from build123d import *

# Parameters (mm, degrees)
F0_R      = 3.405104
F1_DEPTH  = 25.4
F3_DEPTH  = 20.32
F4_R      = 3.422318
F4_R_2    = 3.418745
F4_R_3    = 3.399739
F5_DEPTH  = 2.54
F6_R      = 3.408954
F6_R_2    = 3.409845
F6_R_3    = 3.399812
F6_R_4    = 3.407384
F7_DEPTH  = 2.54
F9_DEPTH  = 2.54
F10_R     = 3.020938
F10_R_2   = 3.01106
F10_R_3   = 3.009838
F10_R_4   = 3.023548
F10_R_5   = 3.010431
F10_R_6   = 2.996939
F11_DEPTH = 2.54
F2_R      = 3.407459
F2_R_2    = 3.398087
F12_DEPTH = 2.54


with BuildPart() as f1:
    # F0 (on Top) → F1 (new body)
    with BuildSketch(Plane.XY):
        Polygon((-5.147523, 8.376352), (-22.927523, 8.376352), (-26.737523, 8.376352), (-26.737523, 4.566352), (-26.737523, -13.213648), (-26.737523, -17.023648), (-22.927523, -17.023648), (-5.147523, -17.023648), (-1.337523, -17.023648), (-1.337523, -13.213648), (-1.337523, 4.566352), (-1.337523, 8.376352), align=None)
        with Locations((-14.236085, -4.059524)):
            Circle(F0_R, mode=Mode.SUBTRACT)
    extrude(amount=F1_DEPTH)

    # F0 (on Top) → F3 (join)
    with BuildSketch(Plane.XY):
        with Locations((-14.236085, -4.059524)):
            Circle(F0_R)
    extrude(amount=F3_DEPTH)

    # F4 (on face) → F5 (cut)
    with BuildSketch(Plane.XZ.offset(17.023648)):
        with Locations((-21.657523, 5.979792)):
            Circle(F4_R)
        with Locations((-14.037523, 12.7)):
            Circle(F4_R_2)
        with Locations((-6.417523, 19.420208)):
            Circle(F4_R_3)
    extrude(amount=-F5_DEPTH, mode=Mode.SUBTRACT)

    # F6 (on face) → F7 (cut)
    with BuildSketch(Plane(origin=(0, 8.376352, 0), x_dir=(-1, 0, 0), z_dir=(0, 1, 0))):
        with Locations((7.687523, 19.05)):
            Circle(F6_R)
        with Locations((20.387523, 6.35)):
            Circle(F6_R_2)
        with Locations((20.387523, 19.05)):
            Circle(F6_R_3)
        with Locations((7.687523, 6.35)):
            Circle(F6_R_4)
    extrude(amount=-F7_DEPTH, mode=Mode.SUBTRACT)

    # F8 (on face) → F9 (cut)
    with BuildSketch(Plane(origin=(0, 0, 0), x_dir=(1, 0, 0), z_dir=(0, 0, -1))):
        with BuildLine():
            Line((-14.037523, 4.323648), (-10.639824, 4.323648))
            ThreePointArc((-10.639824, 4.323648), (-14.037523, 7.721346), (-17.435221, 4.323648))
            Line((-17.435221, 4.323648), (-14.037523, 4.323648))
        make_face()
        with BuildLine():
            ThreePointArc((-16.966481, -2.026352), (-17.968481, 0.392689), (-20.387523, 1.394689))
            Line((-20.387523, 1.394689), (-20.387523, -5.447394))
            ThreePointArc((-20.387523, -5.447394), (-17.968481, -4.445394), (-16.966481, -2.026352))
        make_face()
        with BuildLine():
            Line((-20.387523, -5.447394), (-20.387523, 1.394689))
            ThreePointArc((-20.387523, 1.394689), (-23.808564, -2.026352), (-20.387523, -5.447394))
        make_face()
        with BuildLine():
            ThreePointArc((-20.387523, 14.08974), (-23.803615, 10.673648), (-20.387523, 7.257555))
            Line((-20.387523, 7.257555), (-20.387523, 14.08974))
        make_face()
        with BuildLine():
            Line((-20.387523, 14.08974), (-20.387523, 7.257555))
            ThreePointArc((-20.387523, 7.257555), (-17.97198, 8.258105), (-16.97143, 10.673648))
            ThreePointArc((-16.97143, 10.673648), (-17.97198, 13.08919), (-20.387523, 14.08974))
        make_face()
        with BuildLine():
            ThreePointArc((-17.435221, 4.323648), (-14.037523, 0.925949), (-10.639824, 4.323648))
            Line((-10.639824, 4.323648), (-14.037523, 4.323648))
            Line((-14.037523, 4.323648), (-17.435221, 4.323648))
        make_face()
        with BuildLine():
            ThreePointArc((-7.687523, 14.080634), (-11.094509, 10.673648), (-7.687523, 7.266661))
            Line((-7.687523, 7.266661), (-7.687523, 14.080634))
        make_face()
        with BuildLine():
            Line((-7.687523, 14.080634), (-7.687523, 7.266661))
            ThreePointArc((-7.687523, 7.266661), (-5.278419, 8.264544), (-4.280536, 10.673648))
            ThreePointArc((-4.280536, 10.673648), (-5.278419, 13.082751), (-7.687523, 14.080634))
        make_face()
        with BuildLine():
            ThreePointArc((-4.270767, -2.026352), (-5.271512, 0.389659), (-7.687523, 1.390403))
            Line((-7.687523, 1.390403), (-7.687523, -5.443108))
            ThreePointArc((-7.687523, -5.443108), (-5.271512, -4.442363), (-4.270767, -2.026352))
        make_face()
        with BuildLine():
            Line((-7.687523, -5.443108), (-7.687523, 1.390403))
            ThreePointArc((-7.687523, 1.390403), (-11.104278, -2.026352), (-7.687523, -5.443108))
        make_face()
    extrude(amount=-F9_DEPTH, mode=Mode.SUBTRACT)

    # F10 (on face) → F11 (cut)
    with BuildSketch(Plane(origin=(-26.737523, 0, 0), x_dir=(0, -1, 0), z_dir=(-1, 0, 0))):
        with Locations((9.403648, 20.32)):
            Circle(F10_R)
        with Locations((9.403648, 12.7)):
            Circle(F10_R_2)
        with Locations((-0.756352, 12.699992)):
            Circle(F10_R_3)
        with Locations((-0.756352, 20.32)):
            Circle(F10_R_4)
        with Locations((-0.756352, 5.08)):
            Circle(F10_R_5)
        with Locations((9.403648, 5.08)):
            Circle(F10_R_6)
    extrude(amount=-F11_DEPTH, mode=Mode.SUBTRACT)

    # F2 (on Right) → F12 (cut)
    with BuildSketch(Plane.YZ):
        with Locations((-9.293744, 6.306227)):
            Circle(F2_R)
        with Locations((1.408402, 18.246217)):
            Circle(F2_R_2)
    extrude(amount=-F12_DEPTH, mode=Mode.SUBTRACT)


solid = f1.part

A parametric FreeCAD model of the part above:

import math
import FreeCAD as App
import Part
import Sketcher
from FreeCAD import Vector
Q = App.Units.Quantity

doc = App.newDocument("Part")
body = doc.addObject("PartDesign::Body", "Body")

sketch1 = body.newObject("Sketcher::SketchObject", "Sketch")
sketch1.AttachmentSupport = (doc.getObject("XY_Plane"), [""])
sketch1.MapMode = "FlatFace"
sketch1.addGeometry([
    Part.LineSegment(Vector(-26.7, 8.4, 0), Vector(-26.7, -17, 0)),
    Part.LineSegment(Vector(-26.7, -17, 0), Vector(-1.3, -17, 0)),
    Part.LineSegment(Vector(-1.3, -17, 0), Vector(-1.3, 8.4, 0)),
    Part.LineSegment(Vector(-1.3, 8.4, 0), Vector(-26.7, 8.4, 0)),
    Part.Circle(Vector(-14.2, -4.1, 0), Vector(0, 0, 1), 3.4),
], False)
sketch1.addConstraint([
    Sketcher.Constraint("Coincident", 0, 2, 1, 1),
    Sketcher.Constraint("Coincident", 1, 2, 2, 1),
    Sketcher.Constraint("Coincident", 2, 2, 3, 1),
    Sketcher.Constraint("Coincident", 3, 2, 0, 1),
    Sketcher.Constraint("Vertical", 0),
    Sketcher.Constraint("Horizontal", 1),
    Sketcher.Constraint("Vertical", 2),
    Sketcher.Constraint("Horizontal", 3),
    Sketcher.Constraint("Equal", 3, 0),
    Sketcher.Constraint("DistanceX", 1, 1, 1, 2, Q("1 in")),
    Sketcher.Constraint("Diameter", 4, 6.810208),
    Sketcher.Constraint("DistanceY", 0, 2, -1, 1, 17.023648),
    Sketcher.Constraint("DistanceX", 4, 3, 1, 2, 12.898562),
    Sketcher.Constraint("DistanceX", 4, 3, -1, 1, 14.236085),
    Sketcher.Constraint("DistanceY", 4, 3, -1, 1, 4.059524),
])
pad1 = body.newObject("PartDesign::Pad", "Pad")
pad1.Profile = sketch1
pad1.Length = Q("1 in")

sketch2 = body.newObject("Sketcher::SketchObject", "Sketch001")
sketch2.AttachmentSupport = (doc.getObject("XY_Plane"), [""])
sketch2.MapMode = "FlatFace"
sketch2.addGeometry(Part.Circle(Vector(-14.2, -4.1, 0), Vector(0, 0, 1), 3.4), False)
sketch2.addConstraint([
    Sketcher.Constraint("Diameter", 0, 6.810208),
    Sketcher.Constraint("DistanceX", 0, 3, -1, 1, 14.236085),
    Sketcher.Constraint("DistanceY", 0, 3, -1, 1, 4.059524),
])
pad2 = body.newObject("PartDesign::Pad", "Pad001")
pad2.Profile = sketch2
pad2.Length = Q("0.8 in")

sketch3 = body.newObject("Sketcher::SketchObject", "Sketch002")
sketch3.AttachmentSupport = (doc.getObject("XZ_Plane"), [""])
sketch3.MapMode = "FlatFace"
sketch3.AttachmentOffset = App.Placement(Vector(0, 0, 17.023648), App.Rotation())
sketch3.addGeometry([
    Part.Circle(Vector(-21.7, 6, 0), Vector(0, 0, 1), 3.4),
    Part.Circle(Vector(-14, 12.7, 0), Vector(0, 0, 1), 3.4),
    Part.Circle(Vector(-6.4, 19.4, 0), Vector(0, 0, 1), 3.4),
], False)
sketch3.addConstraint([
    Sketcher.Constraint("DistanceY", -1, 1, 1, 3, Q("0.5 in")),
    Sketcher.Constraint("DistanceX", 0, 3, 1, 3, Q("0.3 in")),
    Sketcher.Constraint("DistanceX", 1, 3, 2, 3, Q("0.3 in")),
    Sketcher.Constraint("Diameter", 1, 6.83749),
    Sketcher.Constraint("Diameter", 0, 6.844636),
    Sketcher.Constraint("Diameter", 2, 6.799478),
    Sketcher.Constraint("DistanceY", -1, 1, 0, 3, 5.979792),
    Sketcher.Constraint("DistanceX", 0, 3, -1, 1, 21.657523),
    Sketcher.Constraint("DistanceY", -1, 1, 2, 3, 19.420208),
])
pocket1 = body.newObject("PartDesign::Pocket", "Pocket")
pocket1.Profile = sketch3
pocket1.Length = Q("0.1 in")

sketch4 = body.newObject("Sketcher::SketchObject", "Sketch003")
sketch4.AttachmentSupport = (doc.getObject("XZ_Plane"), [""])
sketch4.MapMode = "FlatFace"
sketch4.AttachmentOffset = App.Placement(Vector(0, 0, -8.376352), App.Rotation())
sketch4.addGeometry([
    Part.Circle(Vector(-7.7, 19.1, 0), Vector(0, 0, 1), 3.4),
    Part.Circle(Vector(-20.4, 6.3, 0), Vector(0, 0, 1), 3.4),
    Part.Circle(Vector(-20.4, 19.1, 0), Vector(0, 0, 1), 3.4),
    Part.Circle(Vector(-7.7, 6.3, 0), Vector(0, 0, 1), 3.4),
], False)
sketch4.addConstraint([
    Sketcher.Constraint("Horizontal", 0, 3, 2, 3),
    Sketcher.Constraint("Horizontal", 1, 3, 3, 3),
    Sketcher.Constraint("Vertical", 1, 3, 2, 3),
    Sketcher.Constraint("Vertical", 0, 3, 3, 3),
    Sketcher.Constraint("DistanceX", 1, 3, 0, 3, Q("0.5 in")),
    Sketcher.Constraint("DistanceY", 1, 3, 0, 3, Q("0.5 in")),
    Sketcher.Constraint("DistanceY", -1, 1, 0, 3, Q("0.75 in")),
    Sketcher.Constraint("Diameter", 1, 6.81969),
    Sketcher.Constraint("Diameter", 0, 6.817908),
    Sketcher.Constraint("Diameter", 2, 6.799624),
    Sketcher.Constraint("Diameter", 3, 6.814768),
    Sketcher.Constraint("DistanceX", 0, 3, -1, 1, 7.687523),
])
pocket2 = body.newObject("PartDesign::Pocket", "Pocket001")
pocket2.Profile = sketch4
pocket2.Length = Q("0.1 in")
pocket2.Reversed = True

sketch5 = body.newObject("Sketcher::SketchObject", "Sketch004")
sketch5.AttachmentSupport = (doc.getObject("XY_Plane"), [""])
sketch5.MapMode = "FlatFace"
sketch5.addGeometry([
    Part.Circle(Vector(-14, -4.3, 0), Vector(0, 0, 1), 3.4),
    Part.ArcOfCircle(Part.Circle(Vector(-20.4, 2, 0), Vector(0, 0, 1), 3.4), math.radians(-90), math.radians(0)),
    Part.ArcOfCircle(Part.Circle(Vector(-20.4, 2, 0), Vector(0, 0, 1), 3.4), math.radians(90), math.radians(270)),
    Part.ArcOfCircle(Part.Circle(Vector(-20.4, 2, 0), Vector(0, 0, 1), 3.4), math.radians(0), math.radians(90)),
    Part.ArcOfCircle(Part.Circle(Vector(-20.4, -10.7, 0), Vector(0, 0, 1), 3.4), math.radians(90), math.radians(270)),
    Part.ArcOfCircle(Part.Circle(Vector(-20.4, -10.7, 0), Vector(0, 0, 1), 3.4), math.radians(0), math.radians(90)),
    Part.ArcOfCircle(Part.Circle(Vector(-20.4, -10.7, 0), Vector(0, 0, 1), 3.4), math.radians(-90), math.radians(0)),
    Part.ArcOfCircle(Part.Circle(Vector(-7.7, -10.7, 0), Vector(0, 0, 1), 3.4), math.radians(90), math.radians(270)),
    Part.ArcOfCircle(Part.Circle(Vector(-7.7, -10.7, 0), Vector(0, 0, 1), 3.4), math.radians(0), math.radians(90)),
    Part.ArcOfCircle(Part.Circle(Vector(-7.7, -10.7, 0), Vector(0, 0, 1), 3.4), math.radians(-90), math.radians(0)),
    Part.ArcOfCircle(Part.Circle(Vector(-7.7, 2, 0), Vector(0, 0, 1), 3.4), math.radians(-90), math.radians(0)),
    Part.ArcOfCircle(Part.Circle(Vector(-7.7, 2, 0), Vector(0, 0, 1), 3.4), math.radians(90), math.radians(270)),
    Part.ArcOfCircle(Part.Circle(Vector(-7.7, 2, 0), Vector(0, 0, 1), 3.4), math.radians(0), math.radians(90)),
], False)
sketch5.addConstraint([
    Sketcher.Constraint("Tangent", 1, 1, 2, 2),
    Sketcher.Constraint("Tangent", 2, 1, 3, 2),
    Sketcher.Constraint("Tangent", 3, 1, 1, 2),
    Sketcher.Constraint("Tangent", 4, 1, 5, 2),
    Sketcher.Constraint("Tangent", 5, 1, 6, 2),
    Sketcher.Constraint("Tangent", 6, 1, 4, 2),
    Sketcher.Constraint("Tangent", 7, 1, 8, 2),
    Sketcher.Constraint("Tangent", 8, 1, 9, 2),
    Sketcher.Constraint("Tangent", 9, 1, 7, 2),
    Sketcher.Constraint("Tangent", 10, 1, 11, 2),
    Sketcher.Constraint("Tangent", 11, 1, 12, 2),
    Sketcher.Constraint("Tangent", 12, 1, 10, 2),
    Sketcher.Constraint("Horizontal", 6, 3, 7, 3),
    Sketcher.Constraint("Horizontal", 3, 3, 10, 3),
    Sketcher.Constraint("Horizontal", 12, 3, 3, 1),
    Sketcher.Constraint("Horizontal", 9, 3, 5, 1),
    Sketcher.Constraint("Horizontal", 5, 1, 8, 1),
    Sketcher.Constraint("Horizontal", 3, 1, 12, 1),
    Sketcher.Constraint("Vertical", 3, 3, 4, 3),
    Sketcher.Constraint("Vertical", 9, 3, 10, 3),
    Sketcher.Constraint("Vertical", 6, 3, 1, 1),
    Sketcher.Constraint("Vertical", 1, 1, 2, 1),
    Sketcher.Constraint("Vertical", 2, 1, 4, 1),
    Sketcher.Constraint("Vertical", 4, 1, 6, 1),
    Sketcher.Constraint("Vertical", 12, 3, 7, 1),
    Sketcher.Constraint("Vertical", 7, 1, 9, 1),
    Sketcher.Constraint("Vertical", 9, 1, 10, 1),
    Sketcher.Constraint("Vertical", 10, 1, 11, 1),
    Sketcher.Constraint("DistanceY", 4, 3, 3, 3, Q("0.5 in")),
    Sketcher.Constraint("DistanceX", 5, 3, 7, 3, Q("0.5 in")),
    Sketcher.Constraint("DistanceX", 1, 3, 0, 3, Q("0.25 in")),
    Sketcher.Constraint("DistanceY", 0, 3, 1, 3, Q("0.25 in")),
    Sketcher.Constraint("Radius", 1, 3.421042),
    Sketcher.Constraint("Radius", 5, 3.416091),
    Sketcher.Constraint("Diameter", 0, 6.795397),
    Sketcher.Constraint("Radius", 7, 3.406986),
    Sketcher.Constraint("Radius", 10, 3.416755),
    Sketcher.Constraint("DistanceX", 5, 3, -1, 1, 20.387521),
    Sketcher.Constraint("DistanceY", 6, 3, -1, 1, 10.673649),
])
pocket3 = body.newObject("PartDesign::Pocket", "Pocket002")
pocket3.Profile = sketch5
pocket3.Length = Q("0.1 in")
pocket3.Reversed = True

sketch6 = body.newObject("Sketcher::SketchObject", "Sketch005")
sketch6.AttachmentSupport = (doc.getObject("YZ_Plane"), [""])
sketch6.MapMode = "FlatFace"
sketch6.AttachmentOffset = App.Placement(Vector(0, 0, -26.737523), App.Rotation())
sketch6.addGeometry([
    Part.Circle(Vector(-9.4, 20.3, 0), Vector(0, 0, 1), 3),
    Part.Circle(Vector(-9.4, 12.7, 0), Vector(0, 0, 1), 3),
    Part.Circle(Vector(0.8, 12.7, 0), Vector(0, 0, 1), 3),
    Part.Circle(Vector(0.8, 20.3, 0), Vector(0, 0, 1), 3),
    Part.Circle(Vector(0.8, 5.1, 0), Vector(0, 0, 1), 3),
    Part.Circle(Vector(-9.4, 5.1, 0), Vector(0, 0, 1), 3),
], False)
sketch6.addConstraint([
    Sketcher.Constraint("Horizontal", 0, 3, 3, 3),
    Sketcher.Constraint("Horizontal", 4, 3, 5, 3),
    Sketcher.Constraint("Vertical", 0, 3, 1, 3),
    Sketcher.Constraint("Vertical", 2, 3, 3, 3),
    Sketcher.Constraint("Vertical", 3, 3, 4, 3),
    Sketcher.Constraint("Vertical", 1, 3, 5, 3),
    Sketcher.Constraint("DistanceY", -1, 1, 0, 3, Q("0.8 in")),
    Sketcher.Constraint("DistanceY", -1, 1, 1, 3, Q("0.5 in")),
    Sketcher.Constraint("DistanceY", -1, 1, 4, 3, Q("0.2 in")),
    Sketcher.Constraint("DistanceX", 1, 3, 2, 3, Q("0.4 in")),
    Sketcher.Constraint("Diameter", 1, 6.02212),
    Sketcher.Constraint("Diameter", 0, 6.041876),
    Sketcher.Constraint("Diameter", 2, 6.019676),
    Sketcher.Constraint("Diameter", 3, 6.047096),
    Sketcher.Constraint("Diameter", 4, 6.020862),
    Sketcher.Constraint("Diameter", 5, 5.993878),
    Sketcher.Constraint("DistanceY", 2, 3, 0, 3, 7.620008),
    Sketcher.Constraint("DistanceX", 0, 3, -1, 1, 9.403648),
])
pocket4 = body.newObject("PartDesign::Pocket", "Pocket003")
pocket4.Profile = sketch6
pocket4.Length = Q("0.1 in")
pocket4.Reversed = True

sketch7 = body.newObject("Sketcher::SketchObject", "Sketch006")
sketch7.AttachmentSupport = (doc.getObject("YZ_Plane"), [""])
sketch7.MapMode = "FlatFace"
sketch7.addGeometry([
    Part.Circle(Vector(-9.3, 6.3, 0), Vector(0, 0, 1), 3.4),
    Part.Circle(Vector(1.4, 18.2, 0), Vector(0, 0, 1), 3.4),
], False)
sketch7.addConstraint([
    Sketcher.Constraint("Diameter", 0, 6.814918),
    Sketcher.Constraint("Diameter", 1, 6.796174),
    Sketcher.Constraint("DistanceX", -1, 1, 1, 3, 1.408402),
    Sketcher.Constraint("DistanceY", 0, 3, 1, 3, 11.93999),
    Sketcher.Constraint("DistanceX", 0, 3, -1, 1, 9.293744),
    Sketcher.Constraint("DistanceY", -1, 1, 0, 3, 6.306227),
])
pocket5 = body.newObject("PartDesign::Pocket", "Pocket004")
pocket5.Profile = sketch7
pocket5.Length = Q("0.1 in")

doc.recompute()
